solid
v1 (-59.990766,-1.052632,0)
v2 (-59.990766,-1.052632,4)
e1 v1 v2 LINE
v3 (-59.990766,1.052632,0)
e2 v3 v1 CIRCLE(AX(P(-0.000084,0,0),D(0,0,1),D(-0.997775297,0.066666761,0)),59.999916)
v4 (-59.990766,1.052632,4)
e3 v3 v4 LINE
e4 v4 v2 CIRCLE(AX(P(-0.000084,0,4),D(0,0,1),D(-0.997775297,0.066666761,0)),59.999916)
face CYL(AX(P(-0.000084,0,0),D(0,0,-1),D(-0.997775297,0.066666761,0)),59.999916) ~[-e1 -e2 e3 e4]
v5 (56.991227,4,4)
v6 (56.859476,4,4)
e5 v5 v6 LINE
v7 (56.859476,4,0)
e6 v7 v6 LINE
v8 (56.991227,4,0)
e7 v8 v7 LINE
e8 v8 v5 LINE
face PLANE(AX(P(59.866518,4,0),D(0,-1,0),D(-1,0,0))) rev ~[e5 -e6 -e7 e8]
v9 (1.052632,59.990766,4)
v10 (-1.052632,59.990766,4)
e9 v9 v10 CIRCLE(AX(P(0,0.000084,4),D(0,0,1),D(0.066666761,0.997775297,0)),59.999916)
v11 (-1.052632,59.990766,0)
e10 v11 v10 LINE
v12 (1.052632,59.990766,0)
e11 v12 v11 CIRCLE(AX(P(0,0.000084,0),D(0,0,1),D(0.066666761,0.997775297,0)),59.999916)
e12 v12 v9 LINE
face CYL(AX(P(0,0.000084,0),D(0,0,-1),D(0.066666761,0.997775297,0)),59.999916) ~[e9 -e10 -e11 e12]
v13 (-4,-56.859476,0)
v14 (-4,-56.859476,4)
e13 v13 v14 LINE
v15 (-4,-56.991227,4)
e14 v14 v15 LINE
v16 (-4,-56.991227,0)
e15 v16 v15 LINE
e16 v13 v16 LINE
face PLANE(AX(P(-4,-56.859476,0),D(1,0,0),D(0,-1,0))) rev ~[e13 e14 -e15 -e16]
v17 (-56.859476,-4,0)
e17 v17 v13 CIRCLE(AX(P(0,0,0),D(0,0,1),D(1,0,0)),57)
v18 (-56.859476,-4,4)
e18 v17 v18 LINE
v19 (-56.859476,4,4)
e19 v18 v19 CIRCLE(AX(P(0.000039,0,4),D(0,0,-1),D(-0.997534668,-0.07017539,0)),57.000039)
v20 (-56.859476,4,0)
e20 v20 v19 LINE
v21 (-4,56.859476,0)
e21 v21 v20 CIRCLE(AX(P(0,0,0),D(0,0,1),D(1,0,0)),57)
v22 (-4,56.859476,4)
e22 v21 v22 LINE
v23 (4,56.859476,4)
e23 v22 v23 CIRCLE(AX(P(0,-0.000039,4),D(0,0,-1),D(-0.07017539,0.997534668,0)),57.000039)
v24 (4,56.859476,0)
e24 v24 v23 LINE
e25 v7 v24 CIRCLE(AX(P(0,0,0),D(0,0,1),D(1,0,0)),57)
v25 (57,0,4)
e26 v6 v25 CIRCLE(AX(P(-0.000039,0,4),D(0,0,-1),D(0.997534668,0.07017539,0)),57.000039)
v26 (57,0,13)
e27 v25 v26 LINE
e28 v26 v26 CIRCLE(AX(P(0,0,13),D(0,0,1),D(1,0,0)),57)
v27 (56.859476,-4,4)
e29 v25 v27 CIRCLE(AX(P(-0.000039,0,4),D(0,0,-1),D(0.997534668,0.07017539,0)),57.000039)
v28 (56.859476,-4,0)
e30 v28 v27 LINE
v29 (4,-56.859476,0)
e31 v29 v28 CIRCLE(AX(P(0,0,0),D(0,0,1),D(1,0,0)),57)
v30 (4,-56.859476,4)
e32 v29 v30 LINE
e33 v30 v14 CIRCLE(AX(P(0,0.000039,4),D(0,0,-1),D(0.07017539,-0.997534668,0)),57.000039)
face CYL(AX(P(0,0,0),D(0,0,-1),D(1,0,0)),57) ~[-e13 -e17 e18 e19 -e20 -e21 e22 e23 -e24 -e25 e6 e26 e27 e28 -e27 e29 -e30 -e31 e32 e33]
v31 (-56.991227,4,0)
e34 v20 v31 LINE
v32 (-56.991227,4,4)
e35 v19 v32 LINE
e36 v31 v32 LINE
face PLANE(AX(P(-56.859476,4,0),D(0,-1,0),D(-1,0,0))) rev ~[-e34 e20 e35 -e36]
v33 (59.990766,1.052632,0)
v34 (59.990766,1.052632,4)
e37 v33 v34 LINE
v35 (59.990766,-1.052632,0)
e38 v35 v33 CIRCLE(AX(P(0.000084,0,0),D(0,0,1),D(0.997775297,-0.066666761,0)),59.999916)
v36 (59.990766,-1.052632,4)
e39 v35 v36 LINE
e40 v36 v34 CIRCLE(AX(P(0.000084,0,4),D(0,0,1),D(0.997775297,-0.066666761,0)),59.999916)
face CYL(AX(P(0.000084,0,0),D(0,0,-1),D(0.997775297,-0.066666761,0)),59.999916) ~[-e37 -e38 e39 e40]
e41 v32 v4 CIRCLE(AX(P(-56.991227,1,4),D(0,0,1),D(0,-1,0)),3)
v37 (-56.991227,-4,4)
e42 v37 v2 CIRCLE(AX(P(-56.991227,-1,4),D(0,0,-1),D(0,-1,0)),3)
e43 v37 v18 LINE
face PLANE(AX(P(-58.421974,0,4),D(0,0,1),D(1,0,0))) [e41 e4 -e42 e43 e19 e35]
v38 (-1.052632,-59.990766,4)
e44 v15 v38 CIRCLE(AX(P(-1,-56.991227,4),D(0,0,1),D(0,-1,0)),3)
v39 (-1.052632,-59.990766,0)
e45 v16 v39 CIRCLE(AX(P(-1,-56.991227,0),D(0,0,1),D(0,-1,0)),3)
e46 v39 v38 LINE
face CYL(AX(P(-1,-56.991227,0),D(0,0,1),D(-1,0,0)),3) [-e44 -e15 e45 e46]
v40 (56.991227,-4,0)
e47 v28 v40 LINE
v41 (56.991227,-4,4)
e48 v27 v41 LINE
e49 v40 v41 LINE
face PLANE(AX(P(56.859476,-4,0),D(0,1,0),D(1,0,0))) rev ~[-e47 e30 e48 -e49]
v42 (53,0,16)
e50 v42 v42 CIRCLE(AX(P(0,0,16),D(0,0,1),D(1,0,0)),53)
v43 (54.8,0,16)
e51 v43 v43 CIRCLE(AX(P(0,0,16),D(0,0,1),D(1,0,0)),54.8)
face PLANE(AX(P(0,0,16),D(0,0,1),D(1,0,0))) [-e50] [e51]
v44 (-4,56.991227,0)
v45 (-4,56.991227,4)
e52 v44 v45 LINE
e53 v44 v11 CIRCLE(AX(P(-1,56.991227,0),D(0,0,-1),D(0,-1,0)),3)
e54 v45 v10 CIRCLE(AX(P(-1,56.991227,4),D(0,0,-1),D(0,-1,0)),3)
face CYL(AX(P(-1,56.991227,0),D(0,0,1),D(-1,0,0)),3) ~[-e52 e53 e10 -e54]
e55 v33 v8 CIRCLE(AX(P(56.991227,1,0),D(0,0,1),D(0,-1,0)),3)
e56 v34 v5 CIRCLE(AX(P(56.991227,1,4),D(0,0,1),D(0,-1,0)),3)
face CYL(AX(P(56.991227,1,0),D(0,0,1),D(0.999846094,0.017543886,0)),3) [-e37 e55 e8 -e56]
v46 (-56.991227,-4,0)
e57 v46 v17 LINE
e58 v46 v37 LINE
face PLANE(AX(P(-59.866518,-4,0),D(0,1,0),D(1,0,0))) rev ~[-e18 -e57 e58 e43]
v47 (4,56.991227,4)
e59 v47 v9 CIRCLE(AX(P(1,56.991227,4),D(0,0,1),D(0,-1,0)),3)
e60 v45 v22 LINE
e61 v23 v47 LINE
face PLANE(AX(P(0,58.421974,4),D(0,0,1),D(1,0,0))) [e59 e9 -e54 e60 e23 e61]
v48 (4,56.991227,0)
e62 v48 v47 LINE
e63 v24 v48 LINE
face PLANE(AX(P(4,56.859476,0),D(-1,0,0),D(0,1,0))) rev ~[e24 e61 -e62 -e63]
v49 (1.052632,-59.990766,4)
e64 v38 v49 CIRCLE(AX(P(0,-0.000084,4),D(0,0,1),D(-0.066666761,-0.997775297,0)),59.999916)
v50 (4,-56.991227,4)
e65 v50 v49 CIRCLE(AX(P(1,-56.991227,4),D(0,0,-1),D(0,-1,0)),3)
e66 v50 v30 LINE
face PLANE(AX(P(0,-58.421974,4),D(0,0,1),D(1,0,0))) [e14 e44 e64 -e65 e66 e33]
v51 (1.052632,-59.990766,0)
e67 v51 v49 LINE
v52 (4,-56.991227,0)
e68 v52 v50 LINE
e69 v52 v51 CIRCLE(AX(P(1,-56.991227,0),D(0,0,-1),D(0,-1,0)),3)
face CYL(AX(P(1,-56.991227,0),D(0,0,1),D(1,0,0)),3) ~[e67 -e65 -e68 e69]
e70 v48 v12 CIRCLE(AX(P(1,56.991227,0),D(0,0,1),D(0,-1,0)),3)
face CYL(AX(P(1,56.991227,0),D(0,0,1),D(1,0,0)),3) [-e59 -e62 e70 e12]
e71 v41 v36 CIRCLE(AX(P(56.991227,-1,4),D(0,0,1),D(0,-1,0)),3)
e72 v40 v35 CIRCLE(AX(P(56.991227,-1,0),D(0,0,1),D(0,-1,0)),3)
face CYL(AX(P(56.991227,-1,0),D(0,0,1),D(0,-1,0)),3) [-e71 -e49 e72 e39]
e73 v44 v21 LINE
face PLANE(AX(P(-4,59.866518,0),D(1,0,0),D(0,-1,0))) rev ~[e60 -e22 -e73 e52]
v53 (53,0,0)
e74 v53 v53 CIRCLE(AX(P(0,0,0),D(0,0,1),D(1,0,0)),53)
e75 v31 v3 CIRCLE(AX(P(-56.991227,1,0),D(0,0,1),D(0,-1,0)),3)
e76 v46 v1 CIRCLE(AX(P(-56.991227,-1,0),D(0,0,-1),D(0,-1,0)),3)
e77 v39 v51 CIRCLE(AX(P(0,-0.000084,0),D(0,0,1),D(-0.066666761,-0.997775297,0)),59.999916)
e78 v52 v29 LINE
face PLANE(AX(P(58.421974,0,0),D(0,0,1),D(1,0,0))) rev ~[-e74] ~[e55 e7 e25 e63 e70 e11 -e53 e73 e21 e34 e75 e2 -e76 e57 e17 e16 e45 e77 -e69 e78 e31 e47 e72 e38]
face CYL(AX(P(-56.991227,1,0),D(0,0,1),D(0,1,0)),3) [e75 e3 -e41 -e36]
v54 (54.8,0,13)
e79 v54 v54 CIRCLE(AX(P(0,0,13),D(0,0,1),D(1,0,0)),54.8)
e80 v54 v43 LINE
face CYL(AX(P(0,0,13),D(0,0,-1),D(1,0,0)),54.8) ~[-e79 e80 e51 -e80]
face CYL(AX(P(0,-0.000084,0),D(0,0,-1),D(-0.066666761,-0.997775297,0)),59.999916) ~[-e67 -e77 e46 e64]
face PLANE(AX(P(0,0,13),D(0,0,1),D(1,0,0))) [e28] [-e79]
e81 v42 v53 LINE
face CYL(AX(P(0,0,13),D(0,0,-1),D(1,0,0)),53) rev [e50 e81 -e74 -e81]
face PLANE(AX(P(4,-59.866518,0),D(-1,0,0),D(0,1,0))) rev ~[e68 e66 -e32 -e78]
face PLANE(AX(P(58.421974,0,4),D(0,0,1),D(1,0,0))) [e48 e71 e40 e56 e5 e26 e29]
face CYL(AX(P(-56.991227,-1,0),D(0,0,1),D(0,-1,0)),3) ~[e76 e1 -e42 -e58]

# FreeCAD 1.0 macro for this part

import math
import FreeCAD as App
import Part
import Sketcher
from FreeCAD import Vector
Q = App.Units.Quantity


def edges_at(feature, points):
    """Names of the edges that pass closest to the given points."""
    edges = feature.Shape.Edges
    near = lambda p: min(range(len(edges)), key=lambda i: edges[i].distToShape(Part.Vertex(*p))[0])
    return sorted({f"Edge{near(p) + 1}" for p in points})

doc = App.newDocument("Part")
params = doc.addObject("Spreadsheet::Sheet", "Params")
for row, (alias, value) in enumerate([
    ("sketch1_diameter", "114 mm"),
    ("sketch1_diameter2", "106 mm"),
    ("pad1_length", "13 mm"),
    ("pad2_length", "4 mm"),
    ("fillet_radius", "3 mm"),
    ("sketch3_diameter", "106 mm"),
    ("sketch3_diameter2", "109.6 mm"),
    ("pad3_length", "3 mm"),
], start=1):
    params.set(f"A{row}", alias)
    params.set(f"B{row}", "=" + value)
    params.setAlias(f"B{row}", alias)

body = doc.addObject("PartDesign::Body", "Body")

# Sketch on XY plane
sketch1 = body.newObject("Sketcher::SketchObject", "Sketch")
sketch1.AttachmentSupport = (doc.getObject("XY_Plane"), [""])
sketch1.MapMode = "FlatFace"
sketch1.addGeometry(Part.Circle(Vector(0, 0, 0), Vector(0, 0, 1), 57), False)
sketch1.addGeometry(Part.Circle(Vector(0, 0, 0), Vector(0, 0, 1), 53), False)
sketch1.addConstraint(Sketcher.Constraint("Coincident", 0, 3, -1, 1))
sketch1.addConstraint(Sketcher.Constraint("Coincident", 1, 3, -1, 1))
sketch1.addConstraint(Sketcher.Constraint("Diameter", 0, Q("114 mm")))
sketch1.addConstraint(Sketcher.Constraint("Diameter", 1, Q("106 mm")))
sketch1.setExpression("Constraints[2]", "Params.sketch1_diameter")
sketch1.setExpression("Constraints[3]", "Params.sketch1_diameter2")
pad1 = body.newObject("PartDesign::Pad", "Pad")
pad1.Profile = sketch1
pad1.setExpression("Length", "Params.pad1_length")

# Sketch on XY plane
sketch2 = body.newObject("Sketcher::SketchObject", "Sketch001")
sketch2.AttachmentSupport = (doc.getObject("XY_Plane"), [""])
sketch2.MapMode = "FlatFace"
sketch2.addGeometry(Part.LineSegment(Vector(-56.9, 4, 0), Vector(-59.9, 4, 0)), False)
sketch2.addGeometry(Part.ArcOfCircle(Part.Circle(Vector(0, 0, 0), Vector(0, 0, 1), 60), math.radians(176.18), math.radians(183.82)), False)
sketch2.addGeometry(Part.LineSegment(Vector(-59.9, -4, 0), Vector(-56.9, -4, 0)), False)
sketch2.addGeometry(Part.ArcOfCircle(Part.Circle(Vector(0, 0, 0), Vector(0, 0, 1), 57), math.radians(175.98), math.radians(184.02)), False)
sketch2.addGeometry(Part.ArcOfCircle(Part.Circle(Vector(0, 0, 0), Vector(0, 0, 1), 60), math.radians(86.18), math.radians(93.82)), False)
sketch2.addGeometry(Part.LineSegment(Vector(-4, 59.9, 0), Vector(-4, 56.9, 0)), False)
sketch2.addGeometry(Part.ArcOfCircle(Part.Circle(Vector(0, 0, 0), Vector(0, 0, 1), 57), math.radians(85.98), math.radians(94.02)), False)
sketch2.addGeometry(Part.LineSegment(Vector(4, 56.9, 0), Vector(4, 59.9, 0)), False)
sketch2.addGeometry(Part.ArcOfCircle(Part.Circle(Vector(0, 0, 0), Vector(0, 0, 1), 60), math.radians(-93.82), math.radians(-86.18)), False)
sketch2.addGeometry(Part.LineSegment(Vector(4, -59.9, 0), Vector(4, -56.9, 0)), False)
sketch2.addGeometry(Part.ArcOfCircle(Part.Circle(Vector(0, 0, 0), Vector(0, 0, 1), 57), math.radians(-94.02), math.radians(-85.98)), False)
sketch2.addGeometry(Part.LineSegment(Vector(-4, -56.9, 0), Vector(-4, -59.9, 0)), False)
sketch2.addGeometry(Part.LineSegment(Vector(56.9, -4, 0), Vector(59.9, -4, 0)), False)
sketch2.addGeometry(Part.ArcOfCircle(Part.Circle(Vector(0, 0, 0), Vector(0, 0, 1), 60), math.radians(-3.82), math.radians(3.82)), False)
sketch2.addGeometry(Part.LineSegment(Vector(59.9, 4, 0), Vector(56.9, 4, 0)), False)
sketch2.addGeometry(Part.ArcOfCircle(Part.Circle(Vector(0, 0, 0), Vector(0, 0, 1), 57), math.radians(-4.02), math.radians(4.02)), False)
sketch2.addConstraint(Sketcher.Constraint("Coincident", 0, 2, 1, 1))
sketch2.addConstraint(Sketcher.Constraint("Coincident", 1, 2, 2, 1))
sketch2.addConstraint(Sketcher.Constraint("Coincident", 2, 2, 3, 2))
sketch2.addConstraint(Sketcher.Constraint("Coincident", 3, 1, 0, 1))
sketch2.addConstraint(Sketcher.Constraint("Coincident", 4, 2, 5, 1))
sketch2.addConstraint(Sketcher.Constraint("Coincident", 5, 2, 6, 2))
sketch2.addConstraint(Sketcher.Constraint("Coincident", 6, 1, 7, 1))
sketch2.addConstraint(Sketcher.Constraint("Coincident", 7, 2, 4, 1))
sketch2.addConstraint(Sketcher.Constraint("Coincident", 8, 2, 9, 1))
sketch2.addConstraint(Sketcher.Constraint("Coincident", 9, 2, 10, 2))
sketch2.addConstraint(Sketcher.Constraint("Coincident", 10, 1, 11, 1))
sketch2.addConstraint(Sketcher.Constraint("Coincident", 11, 2, 8, 1))
sketch2.addConstraint(Sketcher.Constraint("Coincident", 12, 2, 13, 1))
sketch2.addConstraint(Sketcher.Constraint("Coincident", 13, 2, 14, 1))
sketch2.addConstraint(Sketcher.Constraint("Coincident", 14, 2, 15, 2))
sketch2.addConstraint(Sketcher.Constraint("Coincident", 15, 1, 12, 1))
sketch2.addConstraint(Sketcher.Constraint("Horizontal", 0))
sketch2.addConstraint(Sketcher.Constraint("Horizontal", 2))
sketch2.addConstraint(Sketcher.Constraint("Vertical", 5))
sketch2.addConstraint(Sketcher.Constraint("Vertical", 7))
sketch2.addConstraint(Sketcher.Constraint("Vertical", 9))
sketch2.addConstraint(Sketcher.Constraint("Vertical", 11))
sketch2.addConstraint(Sketcher.Constraint("Horizontal", 12))
sketch2.addConstraint(Sketcher.Constraint("Horizontal", 14))
sketch2.addConstraint(Sketcher.Constraint("Equal", 1, 4))
sketch2.addConstraint(Sketcher.Constraint("Equal", 3, 6))
sketch2.addConstraint(Sketcher.Constraint("Equal", 4, 8))
sketch2.addConstraint(Sketcher.Constraint("Equal", 6, 10))
sketch2.addConstraint(Sketcher.Constraint("Equal", 8, 13))
sketch2.addConstraint(Sketcher.Constraint("Equal", 10, 15))
sketch2.addConstraint(Sketcher.Constraint("Symmetric", 4, 3, 8, 3, -1, 1))
sketch2.addConstraint(Sketcher.Constraint("Symmetric", 6, 3, 10, 3, -1, 1))
sketch2.addConstraint(Sketcher.Constraint("Symmetric", 1, 3, 13, 3, -1, 1))
sketch2.addConstraint(Sketcher.Constraint("Symmetric", 3, 3, 15, 3, -1, 1))
sketch2.addConstraint(Sketcher.Constraint("Symmetric", 5, 2, 6, 1, -2))
sketch2.addConstraint(Sketcher.Constraint("Symmetric", 8, 2, 11, 2, -2))
sketch2.addConstraint(Sketcher.Constraint("Symmetric", 1, 2, 12, 2, -2))
sketch2.addConstraint(Sketcher.Constraint("Symmetric", 3, 1, 14, 2, -2))
sketch2.addConstraint(Sketcher.Constraint("Vertical", 0, 2, 1, 2))
sketch2.addConstraint(Sketcher.Constraint("Vertical", 7, 2, 8, 2))
sketch2.addConstraint(Sketcher.Constraint("Equal", 14, 5))
sketch2.addConstraint(Sketcher.Constraint("DistanceY", -1, 1, 0, 2, Q("4 mm")))
sketch2.addConstraint(Sketcher.Constraint("DistanceX", 4, 2, -1, 1, Q("4 mm")))
sketch2.addConstraint(Sketcher.Constraint("Radius", 3, Q("57.000039 mm")))
sketch2.addConstraint(Sketcher.Constraint("Radius", 1, Q("59.999916 mm")))
sketch2.addConstraint(Sketcher.Constraint("DistanceX", 0, 2, 0, 1, Q("3.007042 mm")))
sketch2.addConstraint(Sketcher.Constraint("DistanceY", 8, 3, 4, 3, Q("0.000169 mm")))
sketch2.addConstraint(Sketcher.Constraint("DistanceX", 0, 2, 15, 3, Q("59.866479 mm")))
pad2 = body.newObject("PartDesign::Pad", "Pad001")
pad2.Profile = sketch2
pad2.setExpression("Length", "Params.pad2_length")
doc.recompute()

fillet = body.newObject("PartDesign::Fillet", "Fillet")
fillet.Base = (pad2, edges_at(pad2, [
    (59.867, -4, 2),
    (59.867, 4, 2),
    (-4, -59.867, 2),
    (4, -59.867, 2),
    (-59.867, -4, 2),
    (-59.867, 4, 2),
    (-4, 59.867, 2),
    (4, 59.867, 2),
]))
fillet.setExpression("Radius", "Params.fillet_radius")

# Sketch on XY plane
sketch3 = body.newObject("Sketcher::SketchObject", "Sketch002")
sketch3.AttachmentSupport = (doc.getObject("XY_Plane"), [""])
sketch3.MapMode = "FlatFace"
sketch3.AttachmentOffset = App.Placement(Vector(0, 0, 13), App.Rotation())
sketch3.addGeometry(Part.Circle(Vector(0, 0, 0), Vector(0, 0, 1), 55), False)
sketch3.addGeometry(Part.Circle(Vector(0, 0, 0), Vector(0, 0, 1), 53), False)
sketch3.addConstraint(Sketcher.Constraint("Coincident", 0, 3, -1, 1))
sketch3.addConstraint(Sketcher.Constraint("Coincident", 1, 3, -1, 1))
sketch3.addConstraint(Sketcher.Constraint("Diameter", 1, Q("106 mm")))
sketch3.addConstraint(Sketcher.Constraint("Diameter", 0, Q("109.6 mm")))
sketch3.setExpression("Constraints[2]", "Params.sketch3_diameter")
sketch3.setExpression("Constraints[3]", "Params.sketch3_diameter2")
pad3 = body.newObject("PartDesign::Pad", "Pad002")
pad3.Profile = sketch3
pad3.setExpression("Length", "Params.pad3_length")

doc.recompute()
